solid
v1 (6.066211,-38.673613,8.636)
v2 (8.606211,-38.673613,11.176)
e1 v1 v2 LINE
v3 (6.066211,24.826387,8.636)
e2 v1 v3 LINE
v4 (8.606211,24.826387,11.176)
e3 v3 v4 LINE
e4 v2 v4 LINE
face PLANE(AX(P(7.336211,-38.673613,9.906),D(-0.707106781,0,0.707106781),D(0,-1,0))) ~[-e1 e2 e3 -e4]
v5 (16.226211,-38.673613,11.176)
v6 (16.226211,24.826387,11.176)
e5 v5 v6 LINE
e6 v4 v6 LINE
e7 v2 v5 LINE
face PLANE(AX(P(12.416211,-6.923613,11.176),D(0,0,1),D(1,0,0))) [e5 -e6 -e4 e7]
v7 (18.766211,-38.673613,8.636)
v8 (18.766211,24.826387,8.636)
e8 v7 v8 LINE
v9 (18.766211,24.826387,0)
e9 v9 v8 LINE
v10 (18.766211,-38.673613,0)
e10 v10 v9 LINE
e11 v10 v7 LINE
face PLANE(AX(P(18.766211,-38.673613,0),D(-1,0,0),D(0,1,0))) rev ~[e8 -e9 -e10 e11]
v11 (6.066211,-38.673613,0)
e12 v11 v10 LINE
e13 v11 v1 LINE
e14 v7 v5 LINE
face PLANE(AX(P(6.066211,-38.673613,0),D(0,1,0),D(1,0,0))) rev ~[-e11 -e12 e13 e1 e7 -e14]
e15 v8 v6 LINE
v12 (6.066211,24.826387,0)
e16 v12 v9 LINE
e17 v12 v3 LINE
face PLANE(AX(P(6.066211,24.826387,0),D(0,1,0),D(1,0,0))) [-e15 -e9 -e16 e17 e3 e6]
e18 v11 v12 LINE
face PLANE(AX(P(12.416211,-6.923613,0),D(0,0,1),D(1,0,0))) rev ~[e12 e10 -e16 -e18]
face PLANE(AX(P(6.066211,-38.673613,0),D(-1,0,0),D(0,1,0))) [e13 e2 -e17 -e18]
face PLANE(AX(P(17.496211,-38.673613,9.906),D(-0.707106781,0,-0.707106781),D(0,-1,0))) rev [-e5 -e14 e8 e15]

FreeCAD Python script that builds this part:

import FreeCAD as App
import Part
import Sketcher

V = App.Vector
Q = App.Units.Quantity


def edges_at(feature, points):
    """Names of the edges that pass closest to the given points."""
    edges = feature.Shape.Edges
    near = lambda p: min(range(len(edges)), key=lambda i: edges[i].distToShape(Part.Vertex(*p))[0])
    return sorted({f"Edge{near(p) + 1}" for p in points})


def add_polygon(sketch, points):
    """Adds a closed chain of lines whose ends are joined by coincident constraints."""
    first, n = sketch.GeometryCount, len(points)
    for a, b in zip(points, points[1:] + points[:1]):
        sketch.addGeometry(Part.LineSegment(App.Vector(*a, 0), App.Vector(*b, 0)), False)
    for i in range(n):
        sketch.addConstraint(Sketcher.Constraint("Coincident", first + i, 2, first + (i + 1) % n, 1))

doc = App.newDocument("Part")
body = doc.addObject("PartDesign::Body", "Body")

# Sketch on XY plane
sketch1 = body.newObject("Sketcher::SketchObject", "Sketch")
sketch1.AttachmentSupport = (doc.getObject("XY_Plane"), [""])
sketch1.MapMode = "FlatFace"
add_polygon(sketch1, [(6, 25), (6, -39), (19, -39), (19, 25)])  # lines 0-3
sketch1.addConstraint([
    Sketcher.Constraint("Vertical", 0),
    Sketcher.Constraint("Horizontal", 1),
    Sketcher.Constraint("Vertical", 2),
    Sketcher.Constraint("Horizontal", 3),
    Sketcher.Constraint("DistanceX", 1, 1, 1, 2, Q("0.5 in")),
    Sketcher.Constraint("DistanceY", 0, 2, 0, 1, Q("2.5 in")),
    Sketcher.Constraint("DistanceX", -1, 1, 0, 2, Q("6.066211 mm")),
    Sketcher.Constraint("DistanceY", 0, 2, -1, 1, Q("38.673613 mm")),
])
pad1 = body.newObject("PartDesign::Pad", "Pad")
pad1.Profile = sketch1
pad1.Length = Q("0.44 in")
doc.recompute()

chamfer = body.newObject("PartDesign::Chamfer", "Chamfer")
chamfer.Base = (pad1, edges_at(pad1, [(6.066, -6.924, 11.176), (18.766, -6.924, 11.176)]))
chamfer.Size = Q("0.1 in")

doc.recompute()
